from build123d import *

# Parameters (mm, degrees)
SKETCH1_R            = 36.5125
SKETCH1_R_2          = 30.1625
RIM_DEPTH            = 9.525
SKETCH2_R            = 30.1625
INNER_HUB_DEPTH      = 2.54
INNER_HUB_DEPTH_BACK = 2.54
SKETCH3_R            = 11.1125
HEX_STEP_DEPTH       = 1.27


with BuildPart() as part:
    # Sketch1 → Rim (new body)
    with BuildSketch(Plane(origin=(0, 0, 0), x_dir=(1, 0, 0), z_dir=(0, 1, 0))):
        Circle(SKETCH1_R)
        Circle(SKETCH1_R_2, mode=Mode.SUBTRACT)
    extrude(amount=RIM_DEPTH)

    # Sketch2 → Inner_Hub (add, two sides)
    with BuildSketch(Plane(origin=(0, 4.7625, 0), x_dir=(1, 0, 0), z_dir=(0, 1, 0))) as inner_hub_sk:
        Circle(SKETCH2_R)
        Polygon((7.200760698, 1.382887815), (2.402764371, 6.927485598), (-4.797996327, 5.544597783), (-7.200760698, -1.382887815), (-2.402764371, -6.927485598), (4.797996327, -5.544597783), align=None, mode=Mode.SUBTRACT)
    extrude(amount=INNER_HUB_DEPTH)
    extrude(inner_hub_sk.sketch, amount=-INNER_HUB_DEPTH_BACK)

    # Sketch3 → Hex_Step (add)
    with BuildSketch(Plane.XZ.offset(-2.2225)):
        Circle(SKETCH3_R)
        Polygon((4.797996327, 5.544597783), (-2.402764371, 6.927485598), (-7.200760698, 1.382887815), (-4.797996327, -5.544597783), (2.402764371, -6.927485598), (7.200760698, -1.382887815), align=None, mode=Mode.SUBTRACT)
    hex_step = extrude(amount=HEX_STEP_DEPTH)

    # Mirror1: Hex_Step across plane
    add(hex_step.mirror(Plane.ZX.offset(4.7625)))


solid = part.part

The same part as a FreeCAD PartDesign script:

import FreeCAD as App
import Part
import Sketcher
Q = App.Units.Quantity


def add_polygon(sketch, points):
    """Adds a closed chain of lines whose ends are joined by coincident constraints."""
    first, n = sketch.GeometryCount, len(points)
    for a, b in zip(points, points[1:] + points[:1]):
        sketch.addGeometry(Part.LineSegment(App.Vector(*a, 0), App.Vector(*b, 0)), False)
    for i in range(n):
        sketch.addConstraint(Sketcher.Constraint("Coincident", first + i, 2, first + (i + 1) % n, 1))

doc = App.newDocument("Part")
body = doc.addObject("PartDesign::Body", "Body")

# Sketch on XZ plane
sketch1 = body.newObject("Sketcher::SketchObject", "Sketch")
sketch1.AttachmentSupport = (doc.getObject("XZ_Plane"), [""])
sketch1.MapMode = "FlatFace"
sketch1.addGeometry(Part.Circle(App.Vector(0, 0, 0), App.Vector(0, 0, 1), 37), False)
sketch1.addGeometry(Part.Circle(App.Vector(0, 0, 0), App.Vector(0, 0, 1), 30), False)
sketch1.addConstraint(Sketcher.Constraint("Coincident", 0, 3, -1, 1))
sketch1.addConstraint(Sketcher.Constraint("Coincident", 1, 3, -1, 1))
sketch1.addConstraint(Sketcher.Constraint("Diameter", 0, Q("2.875 in")))
sketch1.addConstraint(Sketcher.Constraint("Diameter", 1, Q("2.375 in")))
pad1 = body.newObject("PartDesign::Pad", "Pad")
pad1.Profile = sketch1
pad1.Length = Q("0.375 in")
pad1.Reversed = True

# Sketch on XZ plane
sketch2 = body.newObject("Sketcher::SketchObject", "Sketch001")
sketch2.AttachmentSupport = (doc.getObject("XZ_Plane"), [""])
sketch2.MapMode = "FlatFace"
sketch2.AttachmentOffset = App.Placement(App.Vector(0, 0, -0.1875 * 25.4), App.Rotation())
sketch2.addGeometry(Part.Circle(App.Vector(0, 0, 0), App.Vector(0, 0, 1), 30), False)  # 0
add_polygon(sketch2, [(2, -7), (7, -1), (5, 6), (-2, 7), (-7, 1), (-5, -6)])  # lines 1-6
sketch2.addConstraint(Sketcher.Constraint("Coincident", 0, 3, -1, 1))
sketch2.addConstraint(Sketcher.Constraint("Symmetric", 1, 2, 4, 2, -1, 1))
sketch2.addConstraint(Sketcher.Constraint("Symmetric", 2, 2, 5, 2, -1, 1))
sketch2.addConstraint(Sketcher.Constraint("Symmetric", 3, 2, 6, 2, -1, 1))
sketch2.addConstraint(Sketcher.Constraint("Equal", 1, 2))
sketch2.addConstraint(Sketcher.Constraint("Equal", 2, 3))
sketch2.addConstraint(Sketcher.Constraint("Diameter", 0, Q("2.375 in")))
sketch2.addConstraint(Sketcher.Constraint("Distance", 1, Q("7.332348 mm")))
sketch2.addConstraint(Sketcher.Constraint("DistanceX", -1, 1, 1, 2, Q("7.200761 mm")))
sketch2.addConstraint(Sketcher.Constraint("DistanceX", 3, 2, 2, 2, Q("7.200761 mm")))
sketch2.addConstraint(Sketcher.Constraint("DistanceY", 4, 2, 2, 2, Q("4.16171 mm")))
pad2 = body.newObject("PartDesign::Pad", "Pad001")
pad2.Profile = sketch2
pad2.Type = "TwoLengths"
pad2.Length = Q("0.1 in")
pad2.Length2 = Q("0.1 in")
pad2.Reversed = True

# Sketch on XZ plane
sketch3 = body.newObject("Sketcher::SketchObject", "Sketch002")
sketch3.AttachmentSupport = (doc.getObject("XZ_Plane"), [""])
sketch3.MapMode = "FlatFace"
sketch3.AttachmentOffset = App.Placement(App.Vector(0, 0, -0.0875 * 25.4), App.Rotation())
sketch3.addGeometry(Part.Circle(App.Vector(0, 0, 0), App.Vector(0, 0, 1), 11), False)  # 0
add_polygon(sketch3, [(-2, 7), (5, 6), (7, -1), (2, -7), (-5, -6), (-7, 1)])  # lines 1-6
sketch3.addConstraint(Sketcher.Constraint("Coincident", 0, 3, -1, 1))
sketch3.addConstraint(Sketcher.Constraint("Symmetric", 1, 2, 4, 2, -1, 1))
sketch3.addConstraint(Sketcher.Constraint("Symmetric", 2, 2, 5, 2, -1, 1))
sketch3.addConstraint(Sketcher.Constraint("Symmetric", 3, 2, 6, 2, -1, 1))
sketch3.addConstraint(Sketcher.Constraint("Equal", 1, 2))
sketch3.addConstraint(Sketcher.Constraint("Equal", 2, 3))
sketch3.addConstraint(Sketcher.Constraint("Diameter", 0, Q("0.875 in")))
sketch3.addConstraint(Sketcher.Constraint("Distance", 1, Q("7.332348 mm")))
sketch3.addConstraint(Sketcher.Constraint("DistanceX", -1, 1, 2, 2, Q("7.200761 mm")))
sketch3.addConstraint(Sketcher.Constraint("DistanceX", 3, 2, 1, 2, Q("2.395232 mm")))
sketch3.addConstraint(Sketcher.Constraint("DistanceX", 4, 2, 3, 2, Q("7.200761 mm")))
pad3 = body.newObject("PartDesign::Pad", "Pad002")
pad3.Profile = sketch3
pad3.Length = Q("0.05 in")
doc.recompute()

datumplane = body.newObject("PartDesign::Plane", "DatumPlane")
datumplane.AttachmentSupport = (doc.getObject("XZ_Plane"), [""])
datumplane.MapMode = "FlatFace"
datumplane.AttachmentOffset = App.Placement(App.Vector(0, 0, -0.1875 * 25.4), App.Rotation())
mirrored = body.newObject("PartDesign::Mirrored", "Mirrored")
mirrored.Originals = [pad3]
mirrored.MirrorPlane = (datumplane, [""])
body.Tip = mirrored

doc.recompute()
